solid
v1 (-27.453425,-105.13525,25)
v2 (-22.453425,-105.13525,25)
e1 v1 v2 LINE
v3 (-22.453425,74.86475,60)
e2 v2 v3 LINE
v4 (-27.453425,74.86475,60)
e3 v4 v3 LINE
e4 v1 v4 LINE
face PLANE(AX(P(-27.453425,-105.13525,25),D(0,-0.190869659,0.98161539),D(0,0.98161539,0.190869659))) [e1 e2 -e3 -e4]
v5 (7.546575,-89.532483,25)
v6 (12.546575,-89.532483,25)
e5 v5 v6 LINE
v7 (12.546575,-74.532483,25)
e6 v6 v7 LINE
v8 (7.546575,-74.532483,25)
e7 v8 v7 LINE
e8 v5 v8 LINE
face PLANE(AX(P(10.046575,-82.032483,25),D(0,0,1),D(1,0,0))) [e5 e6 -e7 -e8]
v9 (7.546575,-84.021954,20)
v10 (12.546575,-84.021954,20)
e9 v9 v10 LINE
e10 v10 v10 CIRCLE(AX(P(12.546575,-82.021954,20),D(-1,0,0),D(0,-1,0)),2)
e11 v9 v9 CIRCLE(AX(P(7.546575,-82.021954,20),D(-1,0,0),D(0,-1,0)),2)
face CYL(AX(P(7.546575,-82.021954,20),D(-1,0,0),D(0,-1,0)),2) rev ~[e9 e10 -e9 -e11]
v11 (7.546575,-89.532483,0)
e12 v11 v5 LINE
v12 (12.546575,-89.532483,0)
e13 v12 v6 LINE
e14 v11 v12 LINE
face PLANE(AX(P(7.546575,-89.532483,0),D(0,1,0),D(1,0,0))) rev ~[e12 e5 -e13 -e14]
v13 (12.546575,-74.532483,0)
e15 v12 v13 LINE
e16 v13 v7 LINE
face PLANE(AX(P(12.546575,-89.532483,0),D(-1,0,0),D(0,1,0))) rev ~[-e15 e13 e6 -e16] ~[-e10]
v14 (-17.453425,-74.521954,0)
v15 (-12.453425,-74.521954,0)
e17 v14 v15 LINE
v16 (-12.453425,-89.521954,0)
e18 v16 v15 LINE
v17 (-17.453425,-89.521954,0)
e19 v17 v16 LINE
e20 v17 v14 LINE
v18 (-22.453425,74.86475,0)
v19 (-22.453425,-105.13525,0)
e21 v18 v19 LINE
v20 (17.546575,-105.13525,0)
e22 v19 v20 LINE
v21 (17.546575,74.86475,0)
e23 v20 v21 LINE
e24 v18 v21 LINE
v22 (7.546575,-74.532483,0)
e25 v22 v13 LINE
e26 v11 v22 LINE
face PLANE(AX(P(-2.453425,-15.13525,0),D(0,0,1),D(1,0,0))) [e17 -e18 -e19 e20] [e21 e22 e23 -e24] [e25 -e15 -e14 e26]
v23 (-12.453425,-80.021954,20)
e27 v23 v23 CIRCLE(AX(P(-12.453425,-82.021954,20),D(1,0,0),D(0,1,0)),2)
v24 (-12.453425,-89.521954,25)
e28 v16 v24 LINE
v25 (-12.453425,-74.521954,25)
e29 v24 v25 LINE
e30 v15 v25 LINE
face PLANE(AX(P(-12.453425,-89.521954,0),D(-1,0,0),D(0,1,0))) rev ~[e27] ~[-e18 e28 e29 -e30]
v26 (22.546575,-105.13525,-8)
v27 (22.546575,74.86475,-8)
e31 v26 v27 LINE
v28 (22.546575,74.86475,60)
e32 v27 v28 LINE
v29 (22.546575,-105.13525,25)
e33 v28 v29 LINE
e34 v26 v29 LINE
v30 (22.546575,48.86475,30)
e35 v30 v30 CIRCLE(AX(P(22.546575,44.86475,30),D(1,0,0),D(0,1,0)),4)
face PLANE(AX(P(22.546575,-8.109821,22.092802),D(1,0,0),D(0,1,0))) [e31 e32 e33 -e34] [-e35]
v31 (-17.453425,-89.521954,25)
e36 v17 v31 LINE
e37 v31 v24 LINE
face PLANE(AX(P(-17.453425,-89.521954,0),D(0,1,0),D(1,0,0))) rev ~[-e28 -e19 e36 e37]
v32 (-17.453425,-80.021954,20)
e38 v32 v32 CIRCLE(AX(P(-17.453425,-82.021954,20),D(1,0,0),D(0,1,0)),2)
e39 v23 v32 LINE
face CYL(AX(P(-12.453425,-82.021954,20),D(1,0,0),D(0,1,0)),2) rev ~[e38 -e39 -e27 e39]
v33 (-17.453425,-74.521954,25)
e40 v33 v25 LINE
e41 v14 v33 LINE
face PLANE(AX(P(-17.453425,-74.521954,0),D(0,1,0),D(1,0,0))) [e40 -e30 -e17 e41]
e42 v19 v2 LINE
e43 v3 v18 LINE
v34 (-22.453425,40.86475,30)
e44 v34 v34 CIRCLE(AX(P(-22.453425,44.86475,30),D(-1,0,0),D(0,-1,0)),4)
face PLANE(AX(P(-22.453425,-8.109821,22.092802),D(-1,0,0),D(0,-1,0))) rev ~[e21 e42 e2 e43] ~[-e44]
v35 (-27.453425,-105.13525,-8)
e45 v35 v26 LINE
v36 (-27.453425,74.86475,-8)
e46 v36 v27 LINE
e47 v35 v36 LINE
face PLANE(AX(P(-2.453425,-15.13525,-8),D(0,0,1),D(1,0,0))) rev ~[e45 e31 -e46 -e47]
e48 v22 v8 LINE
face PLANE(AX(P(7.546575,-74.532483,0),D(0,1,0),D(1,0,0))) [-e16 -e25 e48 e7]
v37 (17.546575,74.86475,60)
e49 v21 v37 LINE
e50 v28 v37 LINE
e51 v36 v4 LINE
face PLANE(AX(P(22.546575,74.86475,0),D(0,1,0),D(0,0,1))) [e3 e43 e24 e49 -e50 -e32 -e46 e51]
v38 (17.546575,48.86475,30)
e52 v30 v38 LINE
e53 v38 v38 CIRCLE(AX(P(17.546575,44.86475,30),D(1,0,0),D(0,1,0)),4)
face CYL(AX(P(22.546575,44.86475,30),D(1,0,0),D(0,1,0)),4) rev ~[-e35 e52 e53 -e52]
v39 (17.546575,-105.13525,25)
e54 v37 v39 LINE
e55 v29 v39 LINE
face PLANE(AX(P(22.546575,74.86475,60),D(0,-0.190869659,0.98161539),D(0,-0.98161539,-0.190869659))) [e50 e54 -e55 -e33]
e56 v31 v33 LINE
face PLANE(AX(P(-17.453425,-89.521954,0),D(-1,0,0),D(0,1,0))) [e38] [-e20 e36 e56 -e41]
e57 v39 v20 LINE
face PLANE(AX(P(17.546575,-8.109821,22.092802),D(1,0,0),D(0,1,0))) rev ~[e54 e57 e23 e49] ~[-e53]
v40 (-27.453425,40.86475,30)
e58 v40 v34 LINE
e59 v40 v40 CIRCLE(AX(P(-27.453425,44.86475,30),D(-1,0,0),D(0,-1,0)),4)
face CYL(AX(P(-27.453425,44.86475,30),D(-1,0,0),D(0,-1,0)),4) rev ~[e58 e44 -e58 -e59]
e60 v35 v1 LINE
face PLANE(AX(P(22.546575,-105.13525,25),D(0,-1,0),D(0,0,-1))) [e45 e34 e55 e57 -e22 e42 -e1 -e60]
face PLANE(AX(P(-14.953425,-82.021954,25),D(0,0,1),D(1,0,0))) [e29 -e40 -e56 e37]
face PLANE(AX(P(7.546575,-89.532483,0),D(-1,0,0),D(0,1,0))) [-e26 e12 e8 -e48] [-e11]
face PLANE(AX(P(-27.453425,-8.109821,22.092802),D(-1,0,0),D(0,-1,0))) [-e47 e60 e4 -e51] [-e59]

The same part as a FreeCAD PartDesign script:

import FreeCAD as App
import Part
import Sketcher
from FreeCAD import Vector

doc = App.newDocument("Part")
body = doc.addObject("PartDesign::Body", "Body")

# Sketch on XY plane
sketch1 = body.newObject("Sketcher::SketchObject", "Sketch")
sketch1.AttachmentSupport = (doc.getObject("XY_Plane"), [""])
sketch1.MapMode = "FlatFace"
sketch1.addGeometry(Part.LineSegment(Vector(-27, 75, 0), Vector(-27, -105, 0)), False)
sketch1.addGeometry(Part.LineSegment(Vector(-27, -105, 0), Vector(23, -105, 0)), False)
sketch1.addGeometry(Part.LineSegment(Vector(23, -105, 0), Vector(23, 75, 0)), False)
sketch1.addGeometry(Part.LineSegment(Vector(23, 75, 0), Vector(-27, 75, 0)), False)
sketch1.addConstraint(Sketcher.Constraint("Coincident", 0, 2, 1, 1))
sketch1.addConstraint(Sketcher.Constraint("Coincident", 1, 2, 2, 1))
sketch1.addConstraint(Sketcher.Constraint("Coincident", 2, 2, 3, 1))
sketch1.addConstraint(Sketcher.Constraint("Coincident", 3, 2, 0, 1))
sketch1.addConstraint(Sketcher.Constraint("Vertical", 0))
sketch1.addConstraint(Sketcher.Constraint("Horizontal", 1))
sketch1.addConstraint(Sketcher.Constraint("Vertical", 2))
sketch1.addConstraint(Sketcher.Constraint("Horizontal", 3))
sketch1.addConstraint(Sketcher.Constraint("DistanceX", 1, 1, 1, 2, 50.0))
sketch1.addConstraint(Sketcher.Constraint("DistanceY", 0, 2, 0, 1, 180.0))
sketch1.addConstraint(Sketcher.Constraint("DistanceY", 0, 2, -1, 1, 105.13525))
sketch1.addConstraint(Sketcher.Constraint("DistanceX", 0, 2, -1, 1, 27.453425))
pad1 = body.newObject("PartDesign::Pad", "Pad")
pad1.Profile = sketch1
pad1.Length = 8
pad1.Reversed = True

# Sketch on YZ plane
sketch2 = body.newObject("Sketcher::SketchObject", "Sketch001")
sketch2.AttachmentSupport = (doc.getObject("YZ_Plane"), [""])
sketch2.MapMode = "FlatFace"
sketch2.AttachmentOffset = App.Placement(Vector(0, 0, -27.453425), App.Rotation())
sketch2.addGeometry(Part.LineSegment(Vector(74.9, 60, 0), Vector(74.9, 0, 0)), False)
sketch2.addGeometry(Part.LineSegment(Vector(74.9, 0, 0), Vector(-105.1, 0, 0)), False)
sketch2.addGeometry(Part.LineSegment(Vector(-105.1, 0, 0), Vector(-105.1, 25, 0)), False)
sketch2.addGeometry(Part.LineSegment(Vector(-105.1, 25, 0), Vector(74.9, 60, 0)), False)
sketch2.addGeometry(Part.Circle(Vector(44.9, 30, 0), Vector(0, 0, 1), 4), False)
sketch2.addConstraint(Sketcher.Constraint("Coincident", 0, 2, 1, 1))
sketch2.addConstraint(Sketcher.Constraint("Coincident", 1, 2, 2, 1))
sketch2.addConstraint(Sketcher.Constraint("Coincident", 2, 2, 3, 1))
sketch2.addConstraint(Sketcher.Constraint("Coincident", 3, 2, 0, 1))
sketch2.addConstraint(Sketcher.Constraint("Vertical", 0))
sketch2.addConstraint(Sketcher.Constraint("Horizontal", 1))
sketch2.addConstraint(Sketcher.Constraint("Vertical", 2))
sketch2.addConstraint(Sketcher.Constraint("PointOnObject", 0, 2, -1))
sketch2.addConstraint(Sketcher.Constraint("Diameter", 4, 8.0))
sketch2.addConstraint(Sketcher.Constraint("DistanceX", 1, 2, 1, 1, 180.0))
sketch2.addConstraint(Sketcher.Constraint("DistanceY", 0, 2, 0, 1, 60.0))
sketch2.addConstraint(Sketcher.Constraint("DistanceY", 2, 1, 2, 2, 25.0))
sketch2.addConstraint(Sketcher.Constraint("DistanceY", -1, 1, 4, 3, 30.0))
sketch2.addConstraint(Sketcher.Constraint("DistanceX", 4, 3, 0, 2, 30.0))
sketch2.addConstraint(Sketcher.Constraint("DistanceX", -1, 1, 4, 3, 44.86475))
pad2 = body.newObject("PartDesign::Pad", "Pad001")
pad2.Profile = sketch2
pad2.Length = 5

# Sketch on YZ plane
sketch3 = body.newObject("Sketcher::SketchObject", "Sketch002")
sketch3.AttachmentSupport = (doc.getObject("YZ_Plane"), [""])
sketch3.MapMode = "FlatFace"
sketch3.AttachmentOffset = App.Placement(Vector(0, 0, 22.546575), App.Rotation())
sketch3.addGeometry(Part.LineSegment(Vector(-105.1, 25, 0), Vector(-105.1, 0, 0)), False)
sketch3.addGeometry(Part.LineSegment(Vector(-105.1, 0, 0), Vector(74.9, 0, 0)), False)
sketch3.addGeometry(Part.LineSegment(Vector(74.9, 0, 0), Vector(74.9, 60, 0)), False)
sketch3.addGeometry(Part.LineSegment(Vector(74.9, 60, 0), Vector(-105.1, 25, 0)), False)
sketch3.addGeometry(Part.Circle(Vector(44.9, 30, 0), Vector(0, 0, 1), 4), False)
sketch3.addConstraint(Sketcher.Constraint("Coincident", 0, 2, 1, 1))
sketch3.addConstraint(Sketcher.Constraint("Coincident", 1, 2, 2, 1))
sketch3.addConstraint(Sketcher.Constraint("Coincident", 2, 2, 3, 1))
sketch3.addConstraint(Sketcher.Constraint("Coincident", 3, 2, 0, 1))
sketch3.addConstraint(Sketcher.Constraint("Vertical", 0))
sketch3.addConstraint(Sketcher.Constraint("Horizontal", 1))
sketch3.addConstraint(Sketcher.Constraint("Vertical", 2))
sketch3.addConstraint(Sketcher.Constraint("PointOnObject", 0, 2, -1))
sketch3.addConstraint(Sketcher.Constraint("Diameter", 4, 8.0))
sketch3.addConstraint(Sketcher.Constraint("DistanceX", 1, 1, 1, 2, 180.0))
sketch3.addConstraint(Sketcher.Constraint("DistanceY", 0, 2, 0, 1, 25.0))
sketch3.addConstraint(Sketcher.Constraint("DistanceY", 2, 1, 2, 2, 60.0))
sketch3.addConstraint(Sketcher.Constraint("DistanceY", -1, 1, 4, 3, 30.0))
sketch3.addConstraint(Sketcher.Constraint("DistanceX", 0, 2, 4, 3, 150.0))
sketch3.addConstraint(Sketcher.Constraint("DistanceX", -1, 1, 4, 3, 44.86475))
pad3 = body.newObject("PartDesign::Pad", "Pad002")
pad3.Profile = sketch3
pad3.Length = 5
pad3.Reversed = True

# Sketch on XY plane
sketch4 = body.newObject("Sketcher::SketchObject", "Sketch003")
sketch4.AttachmentSupport = (doc.getObject("XY_Plane"), [""])
sketch4.MapMode = "FlatFace"
sketch4.addGeometry(Part.LineSegment(Vector(-17, -75, 0), Vector(-17, -90, 0)), False)
sketch4.addGeometry(Part.LineSegment(Vector(-17, -90, 0), Vector(-12, -90, 0)), False)
sketch4.addGeometry(Part.LineSegment(Vector(-12, -90, 0), Vector(-12, -75, 0)), False)
sketch4.addGeometry(Part.LineSegment(Vector(-12, -75, 0), Vector(-17, -75, 0)), False)
sketch4.addGeometry(Part.LineSegment(Vector(8, -75, 0), Vector(8, -90, 0)), False)
sketch4.addGeometry(Part.LineSegment(Vector(8, -90, 0), Vector(13, -90, 0)), False)
sketch4.addGeometry(Part.LineSegment(Vector(13, -90, 0), Vector(13, -75, 0)), False)
sketch4.addGeometry(Part.LineSegment(Vector(13, -75, 0), Vector(8, -75, 0)), False)
sketch4.addConstraint(Sketcher.Constraint("Coincident", 0, 2, 1, 1))
sketch4.addConstraint(Sketcher.Constraint("Coincident", 1, 2, 2, 1))
sketch4.addConstraint(Sketcher.Constraint("Coincident", 2, 2, 3, 1))
sketch4.addConstraint(Sketcher.Constraint("Coincident", 3, 2, 0, 1))
sketch4.addConstraint(Sketcher.Constraint("Coincident", 4, 2, 5, 1))
sketch4.addConstraint(Sketcher.Constraint("Coincident", 5, 2, 6, 1))
sketch4.addConstraint(Sketcher.Constraint("Coincident", 6, 2, 7, 1))
sketch4.addConstraint(Sketcher.Constraint("Coincident", 7, 2, 4, 1))
sketch4.addConstraint(Sketcher.Constraint("Vertical", 0))
sketch4.addConstraint(Sketcher.Constraint("Horizontal", 1))
sketch4.addConstraint(Sketcher.Constraint("Vertical", 2))
sketch4.addConstraint(Sketcher.Constraint("Horizontal", 3))
sketch4.addConstraint(Sketcher.Constraint("Vertical", 4))
sketch4.addConstraint(Sketcher.Constraint("Horizontal", 5))
sketch4.addConstraint(Sketcher.Constraint("Vertical", 6))
sketch4.addConstraint(Sketcher.Constraint("Horizontal", 7))
sketch4.addConstraint(Sketcher.Constraint("Equal", 3, 5))
sketch4.addConstraint(Sketcher.Constraint("Equal", 2, 4))
sketch4.addConstraint(Sketcher.Constraint("DistanceX", 1, 1, 1, 2, 5.0))
sketch4.addConstraint(Sketcher.Constraint("DistanceY", 0, 2, 0, 1, 15.0))
sketch4.addConstraint(Sketcher.Constraint("DistanceX", 1, 2, 4, 2, 20.0))
sketch4.addConstraint(Sketcher.Constraint("DistanceY", 4, 2, 1, 2, 0.010529))
sketch4.addConstraint(Sketcher.Constraint("DistanceX", 0, 2, -1, 1, 17.453425))
sketch4.addConstraint(Sketcher.Constraint("DistanceY", 0, 2, -1, 1, 89.521954))
pad4 = body.newObject("PartDesign::Pad", "Pad003")
pad4.Profile = sketch4
pad4.Length = 25

# Sketch on YZ plane
sketch5 = body.newObject("Sketcher::SketchObject", "Sketch004")
sketch5.AttachmentSupport = (doc.getObject("YZ_Plane"), [""])
sketch5.MapMode = "FlatFace"
sketch5.AttachmentOffset = App.Placement(Vector(0, 0, -12.453425), App.Rotation())
sketch5.addGeometry(Part.Circle(Vector(-82, 20, 0), Vector(0, 0, 1), 2), False)
sketch5.addConstraint(Sketcher.Constraint("Diameter", 0, 4.0))
sketch5.addConstraint(Sketcher.Constraint("DistanceY", -1, 1, 0, 3, 20.0))
sketch5.addConstraint(Sketcher.Constraint("DistanceX", 0, 3, -1, 1, 82.021954))
pocket1 = body.newObject("PartDesign::Pocket", "Pocket")
pocket1.Profile = sketch5
pocket1.Length = 5

# Sketch on YZ plane
sketch6 = body.newObject("Sketcher::SketchObject", "Sketch005")
sketch6.AttachmentSupport = (doc.getObject("YZ_Plane"), [""])
sketch6.MapMode = "FlatFace"
sketch6.AttachmentOffset = App.Placement(Vector(0, 0, 7.546575), App.Rotation())
sketch6.addGeometry(Part.Circle(Vector(-82, 20, 0), Vector(0, 0, 1), 2), False)
sketch6.addConstraint(Sketcher.Constraint("Diameter", 0, 4.0))
sketch6.addConstraint(Sketcher.Constraint("DistanceY", -1, 1, 0, 3, 20.0))
sketch6.addConstraint(Sketcher.Constraint("DistanceX", 0, 3, -1, 1, 82.021954))
pocket2 = body.newObject("PartDesign::Pocket", "Pocket001")
pocket2.Profile = sketch6
pocket2.Length = 5
pocket2.Reversed = True

doc.recompute()
